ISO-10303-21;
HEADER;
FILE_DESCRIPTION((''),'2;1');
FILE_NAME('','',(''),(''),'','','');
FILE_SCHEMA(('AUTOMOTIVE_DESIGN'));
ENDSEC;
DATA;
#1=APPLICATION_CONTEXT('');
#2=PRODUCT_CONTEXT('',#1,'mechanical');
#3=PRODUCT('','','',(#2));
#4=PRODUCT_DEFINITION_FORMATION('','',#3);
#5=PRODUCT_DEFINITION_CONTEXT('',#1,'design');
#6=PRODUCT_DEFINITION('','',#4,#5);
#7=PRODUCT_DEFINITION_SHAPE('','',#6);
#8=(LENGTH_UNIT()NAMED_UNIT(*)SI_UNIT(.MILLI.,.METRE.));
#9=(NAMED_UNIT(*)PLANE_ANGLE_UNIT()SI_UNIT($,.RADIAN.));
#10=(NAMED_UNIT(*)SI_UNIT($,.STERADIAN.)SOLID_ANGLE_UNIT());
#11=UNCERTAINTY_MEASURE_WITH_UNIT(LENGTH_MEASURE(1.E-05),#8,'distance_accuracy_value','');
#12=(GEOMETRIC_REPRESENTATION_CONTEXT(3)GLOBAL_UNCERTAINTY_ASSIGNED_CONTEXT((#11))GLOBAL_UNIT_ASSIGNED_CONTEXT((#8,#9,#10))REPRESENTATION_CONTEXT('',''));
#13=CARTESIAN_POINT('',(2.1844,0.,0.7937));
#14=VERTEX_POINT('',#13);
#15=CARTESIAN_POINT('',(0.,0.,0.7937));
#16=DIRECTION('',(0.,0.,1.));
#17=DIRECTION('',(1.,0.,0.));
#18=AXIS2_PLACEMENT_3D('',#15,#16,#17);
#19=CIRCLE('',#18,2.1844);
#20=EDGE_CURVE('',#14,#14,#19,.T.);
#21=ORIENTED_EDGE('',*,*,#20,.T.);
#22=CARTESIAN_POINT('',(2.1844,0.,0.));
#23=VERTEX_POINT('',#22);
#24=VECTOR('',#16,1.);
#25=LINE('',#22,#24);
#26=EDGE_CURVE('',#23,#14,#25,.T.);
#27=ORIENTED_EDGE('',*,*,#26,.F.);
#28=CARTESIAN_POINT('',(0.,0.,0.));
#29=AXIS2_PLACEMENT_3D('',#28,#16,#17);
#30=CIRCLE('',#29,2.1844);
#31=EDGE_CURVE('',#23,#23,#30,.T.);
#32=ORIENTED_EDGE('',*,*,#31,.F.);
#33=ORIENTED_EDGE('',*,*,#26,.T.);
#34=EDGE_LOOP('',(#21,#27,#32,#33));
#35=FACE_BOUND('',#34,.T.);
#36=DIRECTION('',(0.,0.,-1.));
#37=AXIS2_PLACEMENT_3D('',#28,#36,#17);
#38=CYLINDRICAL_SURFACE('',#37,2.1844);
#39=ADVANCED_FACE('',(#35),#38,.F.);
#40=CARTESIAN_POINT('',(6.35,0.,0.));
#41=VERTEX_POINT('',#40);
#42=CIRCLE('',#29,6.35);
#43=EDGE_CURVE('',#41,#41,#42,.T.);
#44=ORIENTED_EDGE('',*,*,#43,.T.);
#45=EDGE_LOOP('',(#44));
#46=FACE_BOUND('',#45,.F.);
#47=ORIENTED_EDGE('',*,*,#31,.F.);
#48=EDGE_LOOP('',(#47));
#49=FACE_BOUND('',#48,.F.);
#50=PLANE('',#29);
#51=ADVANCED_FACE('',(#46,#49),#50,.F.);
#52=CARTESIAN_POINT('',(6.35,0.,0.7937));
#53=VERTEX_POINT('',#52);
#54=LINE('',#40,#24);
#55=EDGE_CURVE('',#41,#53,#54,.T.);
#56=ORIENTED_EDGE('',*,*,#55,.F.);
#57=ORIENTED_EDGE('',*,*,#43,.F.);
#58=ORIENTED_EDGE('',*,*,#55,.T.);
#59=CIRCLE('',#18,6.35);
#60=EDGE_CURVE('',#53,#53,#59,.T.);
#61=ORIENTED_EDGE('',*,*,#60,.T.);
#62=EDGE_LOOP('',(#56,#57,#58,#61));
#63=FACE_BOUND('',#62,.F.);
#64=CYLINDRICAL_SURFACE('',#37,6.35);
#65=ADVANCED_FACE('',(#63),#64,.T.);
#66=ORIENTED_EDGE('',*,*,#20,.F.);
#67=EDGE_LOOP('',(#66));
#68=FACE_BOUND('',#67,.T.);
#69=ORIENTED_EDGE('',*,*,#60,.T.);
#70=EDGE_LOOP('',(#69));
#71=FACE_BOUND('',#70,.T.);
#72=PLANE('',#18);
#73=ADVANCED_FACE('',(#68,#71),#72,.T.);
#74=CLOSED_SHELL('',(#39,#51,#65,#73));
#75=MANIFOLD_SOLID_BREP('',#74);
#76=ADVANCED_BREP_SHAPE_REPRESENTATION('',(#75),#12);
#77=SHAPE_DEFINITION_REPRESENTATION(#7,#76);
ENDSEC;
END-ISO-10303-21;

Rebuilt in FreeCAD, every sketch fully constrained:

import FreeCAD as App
import Part
import Sketcher

V = App.Vector
Q = App.Units.Quantity

doc = App.newDocument("Part")
body = doc.addObject("PartDesign::Body", "Body")

# Sketch on XY plane
sketch1 = body.newObject("Sketcher::SketchObject", "Sketch")
sketch1.AttachmentSupport = (doc.getObject("XY_Plane"), [""])
sketch1.MapMode = "FlatFace"
sketch1.addGeometry(Part.Circle(V(0, 0, 0), V(0, 0, 1), 6.3), False)
sketch1.addGeometry(Part.Circle(V(0, 0, 0), V(0, 0, 1), 2.2), False)
sketch1.addConstraint(Sketcher.Constraint("Coincident", 0, 3, -1, 1))
sketch1.addConstraint(Sketcher.Constraint("Coincident", 1, 3, -1, 1))
sketch1.addConstraint(Sketcher.Constraint("Diameter", 0, Q("0.5 in")))
sketch1.addConstraint(Sketcher.Constraint("Diameter", 1, Q("0.172 in")))
pad1 = body.newObject("PartDesign::Pad", "Pad")
pad1.Profile = sketch1
pad1.Length = Q("0.031248 in")

doc.recompute()
